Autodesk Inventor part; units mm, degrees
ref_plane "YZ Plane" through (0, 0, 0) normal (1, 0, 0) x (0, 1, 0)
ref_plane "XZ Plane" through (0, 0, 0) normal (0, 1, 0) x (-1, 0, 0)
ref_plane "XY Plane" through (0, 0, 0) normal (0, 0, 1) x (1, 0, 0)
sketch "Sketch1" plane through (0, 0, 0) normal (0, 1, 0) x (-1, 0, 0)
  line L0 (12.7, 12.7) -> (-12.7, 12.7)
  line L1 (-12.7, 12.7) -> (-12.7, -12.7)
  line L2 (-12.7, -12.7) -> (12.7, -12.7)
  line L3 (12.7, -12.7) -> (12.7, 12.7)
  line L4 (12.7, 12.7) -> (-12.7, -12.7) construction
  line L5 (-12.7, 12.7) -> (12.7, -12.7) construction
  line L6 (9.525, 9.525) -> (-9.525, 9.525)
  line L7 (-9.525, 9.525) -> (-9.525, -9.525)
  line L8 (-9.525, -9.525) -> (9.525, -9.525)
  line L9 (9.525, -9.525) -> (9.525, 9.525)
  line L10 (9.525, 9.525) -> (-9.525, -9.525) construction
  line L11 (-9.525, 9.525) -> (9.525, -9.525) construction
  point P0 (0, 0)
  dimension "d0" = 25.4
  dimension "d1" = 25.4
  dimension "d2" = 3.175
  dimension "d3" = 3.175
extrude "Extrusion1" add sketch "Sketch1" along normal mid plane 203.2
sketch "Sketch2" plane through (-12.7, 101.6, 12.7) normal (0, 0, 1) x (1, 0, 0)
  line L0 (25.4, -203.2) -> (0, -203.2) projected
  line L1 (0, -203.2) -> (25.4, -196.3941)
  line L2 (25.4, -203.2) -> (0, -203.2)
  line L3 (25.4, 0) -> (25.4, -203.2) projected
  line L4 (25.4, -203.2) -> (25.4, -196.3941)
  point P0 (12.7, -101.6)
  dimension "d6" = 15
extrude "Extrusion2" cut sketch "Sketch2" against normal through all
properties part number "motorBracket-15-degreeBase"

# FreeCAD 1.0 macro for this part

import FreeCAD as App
import Part
import Sketcher
Q = App.Units.Quantity


def add_polygon(sketch, points):
    """Adds a closed chain of lines whose ends are joined by coincident constraints."""
    first, n = sketch.GeometryCount, len(points)
    for a, b in zip(points, points[1:] + points[:1]):
        sketch.addGeometry(Part.LineSegment(App.Vector(*a, 0), App.Vector(*b, 0)), False)
    for i in range(n):
        sketch.addConstraint(Sketcher.Constraint("Coincident", first + i, 2, first + (i + 1) % n, 1))

doc = App.newDocument("Part")
params = doc.addObject("Spreadsheet::Sheet", "Params")
for row, (alias, value) in enumerate([
    ("sketch1_width", "1 in"),
    ("pad1_length", "8 in"),
    ("sketch2_width", "1 in"),
], start=1):
    params.set(f"A{row}", alias)
    params.set(f"B{row}", "=" + value)
    params.setAlias(f"B{row}", alias)

body = doc.addObject("PartDesign::Body", "Body")

sketch1 = doc.addObject("Sketcher::SketchObject", "Sketch")
body.addObject(sketch1)
sketch1.AttachmentSupport = (doc.XZ_Plane, [""])
sketch1.MapMode = "FlatFace"
add_polygon(sketch1, [(-13, -13), (-13, 13), (13, 13), (13, -13)])
add_polygon(sketch1, [(10, 10), (-10, 10), (-10, -10), (10, -10)])
sketch1.addConstraint(Sketcher.Constraint("Vertical", 0))
sketch1.addConstraint(Sketcher.Constraint("Horizontal", 1))
sketch1.addConstraint(Sketcher.Constraint("Vertical", 2))
sketch1.addConstraint(Sketcher.Constraint("Horizontal", 3))
sketch1.addConstraint(Sketcher.Constraint("Horizontal", 4))
sketch1.addConstraint(Sketcher.Constraint("Vertical", 5))
sketch1.addConstraint(Sketcher.Constraint("Horizontal", 6))
sketch1.addConstraint(Sketcher.Constraint("Vertical", 7))
sketch1.addConstraint(Sketcher.Constraint("Symmetric", 0, 2, 2, 2, -1, 1))
sketch1.addConstraint(Sketcher.Constraint("Symmetric", 4, 2, 6, 2, -1, 1))
sketch1.addConstraint(Sketcher.Constraint("Equal", 3, 0))
sketch1.addConstraint(Sketcher.Constraint("Equal", 6, 5))
sketch1.addConstraint(Sketcher.Constraint("DistanceX", 1, 1, 1, 2, Q("1 in")))
sketch1.addConstraint(Sketcher.Constraint("DistanceX", 0, 2, 4, 2, Q("0.125 in")))
sketch1.setExpression("Constraints[20]", "Params.sketch1_width")
pad1 = doc.addObject("PartDesign::Pad", "Pad")
body.addObject(pad1)
pad1.Profile = sketch1
pad1.setExpression("Length", "Params.pad1_length")
pad1.Midplane = True

sketch2 = doc.addObject("Sketcher::SketchObject", "Sketch001")
body.addObject(sketch2)
sketch2.AttachmentSupport = (doc.XY_Plane, [""])
sketch2.MapMode = "FlatFace"
sketch2.AttachmentOffset = App.Placement(App.Vector(0, 0, 0.5 * 25.4), App.Rotation())
add_polygon(sketch2, [(-13, -102), (13, -102), (13, -95)])
sketch2.addConstraint(Sketcher.Constraint("Horizontal", 0))
sketch2.addConstraint(Sketcher.Constraint("Vertical", 1))
sketch2.addConstraint(Sketcher.Constraint("DistanceX", 0, 1, 0, 2, Q("1 in")))
sketch2.addConstraint(Sketcher.Constraint("DistanceY", 0, 2, -1, 1, Q("4 in")))
sketch2.addConstraint(Sketcher.Constraint("Angle", 2, Q("-165 deg")))
sketch2.addConstraint(Sketcher.Constraint("DistanceX", -1, 1, 0, 2, Q("0.5 in")))
sketch2.setExpression("Constraints[5]", "Params.sketch2_width")
pocket1 = doc.addObject("PartDesign::Pocket", "Pocket")
body.addObject(pocket1)
pocket1.Profile = sketch2
pocket1.Type = "ThroughAll"

doc.recompute()
